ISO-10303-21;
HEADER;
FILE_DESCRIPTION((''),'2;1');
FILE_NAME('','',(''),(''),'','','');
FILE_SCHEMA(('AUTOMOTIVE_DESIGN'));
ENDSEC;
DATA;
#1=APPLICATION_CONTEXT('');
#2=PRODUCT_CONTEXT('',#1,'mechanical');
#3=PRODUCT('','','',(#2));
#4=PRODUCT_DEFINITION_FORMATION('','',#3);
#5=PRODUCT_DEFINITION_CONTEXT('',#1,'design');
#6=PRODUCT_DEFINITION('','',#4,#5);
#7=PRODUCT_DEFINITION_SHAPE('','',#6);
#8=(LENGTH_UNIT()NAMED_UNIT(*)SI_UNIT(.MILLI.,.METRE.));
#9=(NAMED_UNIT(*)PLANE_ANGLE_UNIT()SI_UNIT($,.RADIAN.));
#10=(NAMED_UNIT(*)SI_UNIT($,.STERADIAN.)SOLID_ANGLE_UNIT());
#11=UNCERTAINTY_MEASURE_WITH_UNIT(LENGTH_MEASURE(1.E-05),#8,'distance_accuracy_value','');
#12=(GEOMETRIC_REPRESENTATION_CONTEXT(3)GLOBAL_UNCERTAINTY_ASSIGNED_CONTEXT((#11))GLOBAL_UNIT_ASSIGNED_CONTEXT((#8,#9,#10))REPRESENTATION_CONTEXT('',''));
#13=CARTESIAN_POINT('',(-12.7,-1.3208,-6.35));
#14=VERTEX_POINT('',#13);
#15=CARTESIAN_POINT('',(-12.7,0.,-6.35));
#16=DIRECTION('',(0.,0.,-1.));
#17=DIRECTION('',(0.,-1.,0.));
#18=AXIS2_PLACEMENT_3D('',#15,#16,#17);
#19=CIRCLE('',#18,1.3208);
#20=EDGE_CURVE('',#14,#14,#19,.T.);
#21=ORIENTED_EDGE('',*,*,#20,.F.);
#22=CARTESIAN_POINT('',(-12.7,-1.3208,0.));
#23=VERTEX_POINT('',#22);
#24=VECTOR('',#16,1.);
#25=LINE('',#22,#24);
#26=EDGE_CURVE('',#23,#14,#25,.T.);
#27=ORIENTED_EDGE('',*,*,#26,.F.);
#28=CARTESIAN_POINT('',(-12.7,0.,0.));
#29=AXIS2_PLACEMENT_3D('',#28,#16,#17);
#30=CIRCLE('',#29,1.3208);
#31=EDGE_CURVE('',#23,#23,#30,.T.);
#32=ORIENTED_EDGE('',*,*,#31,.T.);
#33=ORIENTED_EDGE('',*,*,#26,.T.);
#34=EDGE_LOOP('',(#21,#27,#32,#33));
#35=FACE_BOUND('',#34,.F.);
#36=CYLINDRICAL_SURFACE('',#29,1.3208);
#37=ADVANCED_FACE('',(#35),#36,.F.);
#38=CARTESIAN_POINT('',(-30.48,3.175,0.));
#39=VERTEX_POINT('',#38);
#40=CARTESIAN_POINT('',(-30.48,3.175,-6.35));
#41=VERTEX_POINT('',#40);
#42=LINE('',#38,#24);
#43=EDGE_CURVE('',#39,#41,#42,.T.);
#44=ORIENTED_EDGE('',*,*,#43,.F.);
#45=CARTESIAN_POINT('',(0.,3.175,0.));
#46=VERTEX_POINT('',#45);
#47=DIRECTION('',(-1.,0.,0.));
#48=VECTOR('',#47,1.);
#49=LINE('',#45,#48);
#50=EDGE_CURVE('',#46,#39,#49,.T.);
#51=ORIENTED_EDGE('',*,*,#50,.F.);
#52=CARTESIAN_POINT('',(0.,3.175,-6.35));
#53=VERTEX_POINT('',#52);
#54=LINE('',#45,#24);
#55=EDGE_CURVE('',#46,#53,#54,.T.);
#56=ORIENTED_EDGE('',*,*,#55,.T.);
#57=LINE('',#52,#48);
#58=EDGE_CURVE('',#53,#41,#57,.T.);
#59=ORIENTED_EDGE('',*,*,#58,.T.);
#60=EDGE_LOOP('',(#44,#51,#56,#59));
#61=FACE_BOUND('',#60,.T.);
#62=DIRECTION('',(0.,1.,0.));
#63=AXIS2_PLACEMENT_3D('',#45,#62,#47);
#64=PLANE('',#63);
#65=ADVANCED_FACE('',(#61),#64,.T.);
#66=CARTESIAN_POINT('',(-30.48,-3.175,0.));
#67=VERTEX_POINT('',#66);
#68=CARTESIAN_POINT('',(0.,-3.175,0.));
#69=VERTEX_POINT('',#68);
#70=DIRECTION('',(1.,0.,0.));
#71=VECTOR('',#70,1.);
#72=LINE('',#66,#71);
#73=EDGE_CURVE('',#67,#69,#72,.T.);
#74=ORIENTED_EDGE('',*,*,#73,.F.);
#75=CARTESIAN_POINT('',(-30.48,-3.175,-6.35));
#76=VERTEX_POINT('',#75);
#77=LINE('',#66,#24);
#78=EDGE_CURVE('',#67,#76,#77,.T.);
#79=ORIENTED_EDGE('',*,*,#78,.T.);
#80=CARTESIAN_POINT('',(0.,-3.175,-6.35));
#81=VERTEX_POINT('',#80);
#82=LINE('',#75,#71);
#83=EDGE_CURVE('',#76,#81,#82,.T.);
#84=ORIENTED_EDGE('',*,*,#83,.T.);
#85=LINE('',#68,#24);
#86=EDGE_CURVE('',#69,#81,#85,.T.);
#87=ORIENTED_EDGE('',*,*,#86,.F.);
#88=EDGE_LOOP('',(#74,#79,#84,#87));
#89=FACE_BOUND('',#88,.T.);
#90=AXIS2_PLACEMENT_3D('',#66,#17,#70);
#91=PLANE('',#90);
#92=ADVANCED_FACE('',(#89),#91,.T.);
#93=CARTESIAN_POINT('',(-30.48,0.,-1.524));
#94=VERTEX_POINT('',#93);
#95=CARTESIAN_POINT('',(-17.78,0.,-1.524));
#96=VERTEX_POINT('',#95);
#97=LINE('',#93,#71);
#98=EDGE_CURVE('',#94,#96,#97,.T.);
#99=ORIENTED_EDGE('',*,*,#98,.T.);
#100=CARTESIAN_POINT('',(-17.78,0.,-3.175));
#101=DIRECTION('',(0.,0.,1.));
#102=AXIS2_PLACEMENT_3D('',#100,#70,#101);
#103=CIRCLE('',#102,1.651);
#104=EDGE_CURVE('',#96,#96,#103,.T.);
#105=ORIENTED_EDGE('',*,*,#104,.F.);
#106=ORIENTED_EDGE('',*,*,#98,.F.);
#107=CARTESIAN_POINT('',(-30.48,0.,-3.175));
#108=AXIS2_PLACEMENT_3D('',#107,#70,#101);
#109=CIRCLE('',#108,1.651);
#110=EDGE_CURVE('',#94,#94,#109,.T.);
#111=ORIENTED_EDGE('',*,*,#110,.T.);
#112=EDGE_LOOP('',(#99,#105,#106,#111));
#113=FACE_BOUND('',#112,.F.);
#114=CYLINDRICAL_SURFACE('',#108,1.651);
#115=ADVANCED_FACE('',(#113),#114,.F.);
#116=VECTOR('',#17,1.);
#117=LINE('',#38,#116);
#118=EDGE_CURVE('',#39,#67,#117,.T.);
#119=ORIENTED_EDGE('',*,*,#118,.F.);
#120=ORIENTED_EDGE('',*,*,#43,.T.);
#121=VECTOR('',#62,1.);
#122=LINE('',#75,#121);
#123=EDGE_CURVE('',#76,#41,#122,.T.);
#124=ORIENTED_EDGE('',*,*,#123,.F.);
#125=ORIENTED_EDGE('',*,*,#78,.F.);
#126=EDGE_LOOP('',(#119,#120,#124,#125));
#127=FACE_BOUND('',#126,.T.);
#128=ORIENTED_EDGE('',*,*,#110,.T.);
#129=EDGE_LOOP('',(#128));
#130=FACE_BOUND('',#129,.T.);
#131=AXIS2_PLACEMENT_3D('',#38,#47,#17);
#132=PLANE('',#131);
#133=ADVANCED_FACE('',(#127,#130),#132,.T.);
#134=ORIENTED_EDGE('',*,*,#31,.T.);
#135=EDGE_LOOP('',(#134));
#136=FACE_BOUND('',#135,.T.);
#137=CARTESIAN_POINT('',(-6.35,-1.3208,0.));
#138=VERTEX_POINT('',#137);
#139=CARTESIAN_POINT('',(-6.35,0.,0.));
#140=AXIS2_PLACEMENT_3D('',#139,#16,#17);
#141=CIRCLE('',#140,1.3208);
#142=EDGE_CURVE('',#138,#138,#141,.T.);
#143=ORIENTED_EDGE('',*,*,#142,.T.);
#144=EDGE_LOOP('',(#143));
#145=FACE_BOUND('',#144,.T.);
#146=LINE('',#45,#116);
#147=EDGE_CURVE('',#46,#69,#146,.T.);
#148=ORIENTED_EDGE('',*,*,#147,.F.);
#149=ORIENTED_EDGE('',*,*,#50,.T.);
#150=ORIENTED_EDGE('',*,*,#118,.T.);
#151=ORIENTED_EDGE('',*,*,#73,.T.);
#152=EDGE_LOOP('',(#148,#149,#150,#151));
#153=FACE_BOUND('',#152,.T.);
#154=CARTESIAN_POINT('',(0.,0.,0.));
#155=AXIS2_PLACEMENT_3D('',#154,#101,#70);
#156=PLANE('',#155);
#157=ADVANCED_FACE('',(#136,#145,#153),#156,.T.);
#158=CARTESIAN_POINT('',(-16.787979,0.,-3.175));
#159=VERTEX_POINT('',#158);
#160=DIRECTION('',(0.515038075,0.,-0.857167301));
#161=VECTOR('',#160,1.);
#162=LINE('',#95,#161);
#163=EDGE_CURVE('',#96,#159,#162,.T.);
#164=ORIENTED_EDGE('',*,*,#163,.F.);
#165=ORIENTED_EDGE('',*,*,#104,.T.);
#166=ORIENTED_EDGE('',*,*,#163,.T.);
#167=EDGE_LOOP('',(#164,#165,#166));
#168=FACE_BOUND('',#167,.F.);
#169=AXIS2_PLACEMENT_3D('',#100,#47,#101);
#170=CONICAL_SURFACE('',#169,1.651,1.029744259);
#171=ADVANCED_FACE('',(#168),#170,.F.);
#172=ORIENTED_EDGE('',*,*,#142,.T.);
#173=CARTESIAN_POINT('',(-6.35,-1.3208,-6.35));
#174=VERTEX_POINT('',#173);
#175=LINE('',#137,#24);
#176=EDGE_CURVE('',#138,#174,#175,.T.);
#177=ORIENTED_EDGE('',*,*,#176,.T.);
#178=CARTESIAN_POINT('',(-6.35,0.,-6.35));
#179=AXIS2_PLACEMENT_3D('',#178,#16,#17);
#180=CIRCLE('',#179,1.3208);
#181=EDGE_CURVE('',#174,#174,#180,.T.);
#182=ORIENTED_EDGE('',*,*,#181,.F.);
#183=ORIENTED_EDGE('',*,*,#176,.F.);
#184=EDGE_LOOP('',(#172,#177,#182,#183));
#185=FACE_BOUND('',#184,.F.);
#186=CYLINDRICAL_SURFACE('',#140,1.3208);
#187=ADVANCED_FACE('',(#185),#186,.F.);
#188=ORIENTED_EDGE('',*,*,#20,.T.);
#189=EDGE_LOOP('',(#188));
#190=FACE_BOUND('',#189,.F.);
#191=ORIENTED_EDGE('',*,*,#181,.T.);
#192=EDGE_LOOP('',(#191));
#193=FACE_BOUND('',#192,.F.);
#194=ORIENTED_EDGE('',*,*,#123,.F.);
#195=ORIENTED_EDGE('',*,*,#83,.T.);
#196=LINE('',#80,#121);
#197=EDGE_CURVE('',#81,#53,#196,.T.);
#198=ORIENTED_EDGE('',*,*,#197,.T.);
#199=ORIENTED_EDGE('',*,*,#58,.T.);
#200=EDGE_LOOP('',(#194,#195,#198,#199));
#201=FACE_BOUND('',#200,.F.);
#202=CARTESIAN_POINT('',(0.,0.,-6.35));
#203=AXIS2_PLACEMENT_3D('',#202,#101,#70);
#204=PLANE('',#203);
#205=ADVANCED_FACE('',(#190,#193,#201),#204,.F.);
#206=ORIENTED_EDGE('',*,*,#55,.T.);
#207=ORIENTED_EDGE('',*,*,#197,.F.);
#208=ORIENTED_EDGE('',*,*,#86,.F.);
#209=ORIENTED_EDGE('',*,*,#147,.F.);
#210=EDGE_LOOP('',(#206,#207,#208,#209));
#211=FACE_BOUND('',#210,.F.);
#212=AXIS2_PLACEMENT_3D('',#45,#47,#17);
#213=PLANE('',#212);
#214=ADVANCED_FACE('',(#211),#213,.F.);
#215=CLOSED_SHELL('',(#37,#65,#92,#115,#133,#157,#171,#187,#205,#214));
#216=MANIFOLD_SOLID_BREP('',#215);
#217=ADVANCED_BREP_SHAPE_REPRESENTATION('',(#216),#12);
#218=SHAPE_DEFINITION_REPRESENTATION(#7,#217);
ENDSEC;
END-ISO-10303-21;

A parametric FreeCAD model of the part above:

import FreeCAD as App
import Part
import Sketcher
Q = App.Units.Quantity


def add_polygon(sketch, points):
    """Adds a closed chain of lines whose ends are joined by coincident constraints."""
    first, n = sketch.GeometryCount, len(points)
    for a, b in zip(points, points[1:] + points[:1]):
        sketch.addGeometry(Part.LineSegment(App.Vector(*a, 0), App.Vector(*b, 0)), False)
    for i in range(n):
        sketch.addConstraint(Sketcher.Constraint("Coincident", first + i, 2, first + (i + 1) % n, 1))

doc = App.newDocument("Part")
params = doc.addObject("Spreadsheet::Sheet", "Params")
for row, (alias, value) in enumerate([
    ("sketch1_width", "1.2 in"),
    ("sketch1_height", "0.25 in"),
    ("pad1_length", "0.25 in"),
    ("sketch2_diameter", "0.104 in"),
    ("hole_diameter", "0.104 in"),
    ("sketch3_diameter", "0.13 in"),
    ("hole2_diameter", "0.13 in"),
    ("hole2_depth", "0.5 in"),
], start=1):
    params.set(f"A{row}", alias)
    params.set(f"B{row}", "=" + value)
    params.setAlias(f"B{row}", alias)

body = doc.addObject("PartDesign::Body", "Body")

sketch1 = doc.addObject("Sketcher::SketchObject", "Sketch")
body.addObject(sketch1)
sketch1.AttachmentSupport = (doc.XY_Plane, [""])
sketch1.MapMode = "FlatFace"
add_polygon(sketch1, [(0, 3), (-30, 3), (-30, -3), (0, -3)])
sketch1.addConstraint([
    Sketcher.Constraint("Horizontal", 0),
    Sketcher.Constraint("Vertical", 1),
    Sketcher.Constraint("Horizontal", 2),
    Sketcher.Constraint("Vertical", 3),
    Sketcher.Constraint("Symmetric", 2, 2, 3, 2, -1, 1),
    Sketcher.Constraint("DistanceX", 0, 2, 0, 1, Q("1.2 in")),
    Sketcher.Constraint("DistanceY", 1, 2, 1, 1, Q("0.25 in")),
])
sketch1.setExpression("Constraints[9]", "Params.sketch1_width")
sketch1.setExpression("Constraints[10]", "Params.sketch1_height")
pad1 = doc.addObject("PartDesign::Pad", "Pad")
body.addObject(pad1)
pad1.Profile = sketch1
pad1.setExpression("Length", "Params.pad1_length")
pad1.Reversed = True

sketch2 = doc.addObject("Sketcher::SketchObject", "Sketch001")
body.addObject(sketch2)
sketch2.AttachmentSupport = (doc.XY_Plane, [""])
sketch2.MapMode = "FlatFace"
sketch2.addGeometry([
    Part.Circle(App.Vector(-6.3, 0, 0), App.Vector(0, 0, 1), 1.3),
    Part.Circle(App.Vector(-12.7, 0, 0), App.Vector(0, 0, 1), 1.3),
], False)
sketch2.addConstraint([
    Sketcher.Constraint("Equal", 0, 1),
    Sketcher.Constraint("PointOnObject", 0, 3, -1),
    Sketcher.Constraint("PointOnObject", 1, 3, -1),
    Sketcher.Constraint("Diameter", 0, Q("0.104 in")),
    Sketcher.Constraint("DistanceX", 1, 3, -1, 1, Q("0.5 in")),
    Sketcher.Constraint("DistanceX", 0, 3, -1, 1, Q("0.25 in")),
])
sketch2.setExpression("Constraints[3]", "Params.sketch2_diameter")
doc.recompute()
hole = doc.addObject("PartDesign::Hole", "Hole")
body.addObject(hole)
hole.Profile = sketch2
hole.ThreadType = "None"
hole.setExpression("Diameter", "Params.hole_diameter")
hole.DepthType = "ThroughAll"

sketch3 = doc.addObject("Sketcher::SketchObject", "Sketch002")
body.addObject(sketch3)
sketch3.AttachmentSupport = (doc.YZ_Plane, [""])
sketch3.MapMode = "FlatFace"
sketch3.AttachmentOffset = App.Placement(App.Vector(0, 0, -1.2 * 25.4), App.Rotation())
sketch3.addGeometry(Part.Circle(App.Vector(0, -3.2, 0), App.Vector(0, 0, 1), 1.7), False)
sketch3.addConstraint([
    Sketcher.Constraint("PointOnObject", 0, 3, -2),
    Sketcher.Constraint("Diameter", 0, Q("0.13 in")),
    Sketcher.Constraint("DistanceY", 0, 3, -1, 1, Q("0.125 in")),
])
sketch3.setExpression("Constraints[1]", "Params.sketch3_diameter")
doc.recompute()
hole2 = doc.addObject("PartDesign::Hole", "Hole001")
body.addObject(hole2)
hole2.Profile = sketch3
hole2.ThreadType = "None"
hole2.setExpression("Diameter", "Params.hole2_diameter")
hole2.DepthType = "Dimension"
hole2.setExpression("Depth", "Params.hole2_depth")
hole2.DrillPoint = "Angled"
hole2.DrillPointAngle = 118
hole2.Reversed = True

doc.recompute()
